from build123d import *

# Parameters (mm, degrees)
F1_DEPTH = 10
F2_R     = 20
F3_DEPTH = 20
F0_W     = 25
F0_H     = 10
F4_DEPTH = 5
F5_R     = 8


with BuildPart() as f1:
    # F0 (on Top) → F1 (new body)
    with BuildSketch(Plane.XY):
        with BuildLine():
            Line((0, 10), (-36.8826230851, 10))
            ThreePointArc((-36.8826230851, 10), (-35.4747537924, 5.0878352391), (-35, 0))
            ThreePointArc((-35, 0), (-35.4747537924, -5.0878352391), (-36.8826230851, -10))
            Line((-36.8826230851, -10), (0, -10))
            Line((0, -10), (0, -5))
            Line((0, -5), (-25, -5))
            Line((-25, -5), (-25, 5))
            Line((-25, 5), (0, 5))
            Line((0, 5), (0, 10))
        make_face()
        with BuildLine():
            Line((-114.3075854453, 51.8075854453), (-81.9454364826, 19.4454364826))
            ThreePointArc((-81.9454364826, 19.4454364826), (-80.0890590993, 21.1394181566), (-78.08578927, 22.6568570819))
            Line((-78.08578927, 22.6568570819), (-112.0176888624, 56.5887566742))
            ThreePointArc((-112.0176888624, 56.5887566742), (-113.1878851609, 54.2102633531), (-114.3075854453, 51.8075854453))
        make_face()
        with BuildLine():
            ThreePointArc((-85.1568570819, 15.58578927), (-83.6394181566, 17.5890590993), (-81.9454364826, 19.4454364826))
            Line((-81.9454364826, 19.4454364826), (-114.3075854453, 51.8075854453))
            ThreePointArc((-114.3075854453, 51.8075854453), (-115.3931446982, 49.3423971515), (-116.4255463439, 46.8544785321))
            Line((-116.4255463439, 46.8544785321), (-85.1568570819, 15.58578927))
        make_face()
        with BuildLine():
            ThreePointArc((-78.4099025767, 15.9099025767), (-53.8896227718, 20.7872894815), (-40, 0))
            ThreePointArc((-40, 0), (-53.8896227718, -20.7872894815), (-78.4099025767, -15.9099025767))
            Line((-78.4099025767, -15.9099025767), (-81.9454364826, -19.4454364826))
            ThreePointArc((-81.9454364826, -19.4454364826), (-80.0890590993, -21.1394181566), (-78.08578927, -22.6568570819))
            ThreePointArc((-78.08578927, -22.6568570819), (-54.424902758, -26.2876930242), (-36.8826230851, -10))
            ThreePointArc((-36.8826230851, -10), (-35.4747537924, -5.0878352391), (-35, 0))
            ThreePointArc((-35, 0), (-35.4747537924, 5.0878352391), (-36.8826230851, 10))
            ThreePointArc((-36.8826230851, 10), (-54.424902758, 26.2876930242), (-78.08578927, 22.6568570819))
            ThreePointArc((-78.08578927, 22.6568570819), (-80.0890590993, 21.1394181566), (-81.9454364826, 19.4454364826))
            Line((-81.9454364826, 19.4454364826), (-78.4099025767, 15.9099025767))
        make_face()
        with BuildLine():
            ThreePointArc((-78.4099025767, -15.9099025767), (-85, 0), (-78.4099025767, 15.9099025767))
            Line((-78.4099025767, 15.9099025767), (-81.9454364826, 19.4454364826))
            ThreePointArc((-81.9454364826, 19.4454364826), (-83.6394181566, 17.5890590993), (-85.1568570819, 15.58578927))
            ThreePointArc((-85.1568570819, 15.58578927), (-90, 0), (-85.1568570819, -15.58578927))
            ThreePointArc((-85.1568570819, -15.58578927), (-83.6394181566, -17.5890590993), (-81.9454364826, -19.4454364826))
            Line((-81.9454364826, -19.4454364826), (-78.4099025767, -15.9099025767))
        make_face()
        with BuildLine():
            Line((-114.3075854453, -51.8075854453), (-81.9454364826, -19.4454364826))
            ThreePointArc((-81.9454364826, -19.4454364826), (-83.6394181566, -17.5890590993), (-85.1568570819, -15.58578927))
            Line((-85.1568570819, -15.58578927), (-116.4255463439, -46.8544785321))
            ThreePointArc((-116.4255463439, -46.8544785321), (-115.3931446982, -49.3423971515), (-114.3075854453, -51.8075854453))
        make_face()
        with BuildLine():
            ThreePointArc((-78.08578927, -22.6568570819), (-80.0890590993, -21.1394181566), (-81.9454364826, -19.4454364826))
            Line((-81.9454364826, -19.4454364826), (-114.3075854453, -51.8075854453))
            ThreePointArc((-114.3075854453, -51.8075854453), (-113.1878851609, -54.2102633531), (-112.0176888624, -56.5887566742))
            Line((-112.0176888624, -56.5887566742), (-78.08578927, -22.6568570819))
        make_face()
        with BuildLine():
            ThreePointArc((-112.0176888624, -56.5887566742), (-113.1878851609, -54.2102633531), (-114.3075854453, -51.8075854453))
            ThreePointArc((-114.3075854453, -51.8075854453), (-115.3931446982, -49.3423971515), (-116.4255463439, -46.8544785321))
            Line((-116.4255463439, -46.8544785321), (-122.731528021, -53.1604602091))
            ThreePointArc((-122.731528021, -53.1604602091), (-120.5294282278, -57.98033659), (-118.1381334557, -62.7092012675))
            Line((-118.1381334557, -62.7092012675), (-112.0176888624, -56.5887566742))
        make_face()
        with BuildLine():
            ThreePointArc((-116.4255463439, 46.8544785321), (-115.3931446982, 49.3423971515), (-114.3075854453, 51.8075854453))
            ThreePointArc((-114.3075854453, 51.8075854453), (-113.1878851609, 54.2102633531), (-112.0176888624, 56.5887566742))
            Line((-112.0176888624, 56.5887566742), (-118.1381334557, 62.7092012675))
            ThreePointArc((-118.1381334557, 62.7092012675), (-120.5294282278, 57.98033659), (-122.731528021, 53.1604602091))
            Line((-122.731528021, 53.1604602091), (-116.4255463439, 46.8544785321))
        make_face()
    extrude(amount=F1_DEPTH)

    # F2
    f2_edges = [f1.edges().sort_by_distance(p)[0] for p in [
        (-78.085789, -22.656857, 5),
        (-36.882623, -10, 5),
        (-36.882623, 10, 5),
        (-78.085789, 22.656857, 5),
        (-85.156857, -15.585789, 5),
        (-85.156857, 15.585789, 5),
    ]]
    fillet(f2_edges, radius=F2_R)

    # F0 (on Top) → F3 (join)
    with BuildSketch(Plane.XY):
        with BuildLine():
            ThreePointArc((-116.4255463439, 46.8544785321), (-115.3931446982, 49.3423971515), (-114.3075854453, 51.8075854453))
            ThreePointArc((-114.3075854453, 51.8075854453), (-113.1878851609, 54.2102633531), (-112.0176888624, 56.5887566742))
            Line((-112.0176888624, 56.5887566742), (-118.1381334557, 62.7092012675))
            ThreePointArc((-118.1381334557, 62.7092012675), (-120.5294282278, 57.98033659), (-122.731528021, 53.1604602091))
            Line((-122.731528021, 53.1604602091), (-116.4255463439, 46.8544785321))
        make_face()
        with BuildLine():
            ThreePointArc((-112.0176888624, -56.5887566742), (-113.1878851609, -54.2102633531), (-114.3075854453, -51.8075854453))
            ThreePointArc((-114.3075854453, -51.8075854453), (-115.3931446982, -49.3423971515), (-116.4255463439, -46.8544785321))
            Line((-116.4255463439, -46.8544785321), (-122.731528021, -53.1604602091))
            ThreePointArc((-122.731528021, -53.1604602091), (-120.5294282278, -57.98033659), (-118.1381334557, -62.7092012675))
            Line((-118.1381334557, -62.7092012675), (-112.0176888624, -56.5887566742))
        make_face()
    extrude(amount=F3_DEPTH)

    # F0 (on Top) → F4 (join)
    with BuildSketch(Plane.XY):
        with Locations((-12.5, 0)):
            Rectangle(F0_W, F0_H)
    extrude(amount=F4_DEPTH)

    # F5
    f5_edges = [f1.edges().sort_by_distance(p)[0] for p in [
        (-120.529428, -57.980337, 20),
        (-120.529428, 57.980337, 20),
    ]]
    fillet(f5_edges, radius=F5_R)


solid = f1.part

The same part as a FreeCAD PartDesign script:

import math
import FreeCAD as App
import Part
import Sketcher
Q = App.Units.Quantity


def edges_at(feature, points):
    """Names of the edges that pass closest to the given points."""
    edges = feature.Shape.Edges
    near = lambda p: min(range(len(edges)), key=lambda i: edges[i].distToShape(Part.Vertex(*p))[0])
    return sorted({f"Edge{near(p) + 1}" for p in points})

doc = App.newDocument("Part")
body = doc.addObject("PartDesign::Body", "Body")

sketch1 = body.newObject("Sketcher::SketchObject", "Sketch")
sketch1.AttachmentSupport = (doc.getObject("XY_Plane"), [""])
sketch1.MapMode = "FlatFace"
sketch1.addGeometry([
    Part.LineSegment(App.Vector(0, 10, 0), App.Vector(-37, 10, 0)),
    Part.ArcOfCircle(Part.Circle(App.Vector(-62, 0, 0), App.Vector(0, 0, 1), 28), math.radians(21), math.radians(125)),
    Part.LineSegment(App.Vector(-78, 23, 0), App.Vector(-112, 57, 0)),
    Part.LineSegment(App.Vector(-112, 57, 0), App.Vector(-118, 63, 0)),
    Part.ArcOfCircle(Part.Circle(App.Vector(0, 0, 0), App.Vector(0, 0, 1), 134), math.radians(152.04), math.radians(156.58)),
    Part.LineSegment(App.Vector(-123, 53, 0), App.Vector(-116, 47, 0)),
    Part.LineSegment(App.Vector(-116, 47, 0), App.Vector(-85, 16, 0)),
    Part.ArcOfCircle(Part.Circle(App.Vector(-62, 0, 0), App.Vector(0, 0, 1), 28), math.radians(145), math.radians(215)),
    Part.LineSegment(App.Vector(-85, -16, 0), App.Vector(-116, -47, 0)),
    Part.LineSegment(App.Vector(-116, -47, 0), App.Vector(-123, -53, 0)),
    Part.ArcOfCircle(Part.Circle(App.Vector(0, 0, 0), App.Vector(0, 0, 1), 134), math.radians(-156.58), math.radians(-152.04)),
    Part.LineSegment(App.Vector(-118, -63, 0), App.Vector(-112, -57, 0)),
    Part.LineSegment(App.Vector(-112, -57, 0), App.Vector(-78, -23, 0)),
    Part.ArcOfCircle(Part.Circle(App.Vector(-62, 0, 0), App.Vector(0, 0, 1), 28), math.radians(-125), math.radians(-21)),
    Part.LineSegment(App.Vector(-37, -10, 0), App.Vector(0, -10, 0)),
    Part.LineSegment(App.Vector(0, -10, 0), App.Vector(0, -5, 0)),
    Part.LineSegment(App.Vector(0, -5, 0), App.Vector(-25, -5, 0)),
    Part.LineSegment(App.Vector(-25, -5, 0), App.Vector(-25, 5, 0)),
    Part.LineSegment(App.Vector(-25, 5, 0), App.Vector(0, 5, 0)),
    Part.LineSegment(App.Vector(0, 5, 0), App.Vector(0, 10, 0)),
    Part.ArcOfCircle(Part.Circle(App.Vector(-62, 0, 0), App.Vector(0, 0, 1), 22), math.radians(0), math.radians(135)),
    Part.ArcOfCircle(Part.Circle(App.Vector(-62, 0, 0), App.Vector(0, 0, 1), 22), math.radians(-135), math.radians(0)),
    Part.ArcOfCircle(Part.Circle(App.Vector(-62, 0, 0), App.Vector(0, 0, 1), 22), math.radians(135), math.radians(225)),
], False)
sketch1.addConstraint([
    Sketcher.Constraint("Coincident", 0, 2, 1, 1),
    Sketcher.Constraint("Coincident", 1, 2, 2, 1),
    Sketcher.Constraint("Coincident", 2, 2, 3, 1),
    Sketcher.Constraint("Coincident", 3, 2, 4, 1),
    Sketcher.Constraint("Coincident", 4, 2, 5, 1),
    Sketcher.Constraint("Coincident", 5, 2, 6, 1),
    Sketcher.Constraint("Coincident", 6, 2, 7, 1),
    Sketcher.Constraint("Coincident", 7, 2, 8, 1),
    Sketcher.Constraint("Coincident", 8, 2, 9, 1),
    Sketcher.Constraint("Coincident", 9, 2, 10, 1),
    Sketcher.Constraint("Coincident", 10, 2, 11, 1),
    Sketcher.Constraint("Coincident", 11, 2, 12, 1),
    Sketcher.Constraint("Coincident", 12, 2, 13, 1),
    Sketcher.Constraint("Coincident", 13, 2, 14, 1),
    Sketcher.Constraint("Coincident", 14, 2, 15, 1),
    Sketcher.Constraint("Coincident", 15, 2, 16, 1),
    Sketcher.Constraint("Coincident", 16, 2, 17, 1),
    Sketcher.Constraint("Coincident", 17, 2, 18, 1),
    Sketcher.Constraint("Coincident", 18, 2, 19, 1),
    Sketcher.Constraint("Coincident", 19, 2, 0, 1),
    Sketcher.Constraint("Tangent", 20, 1, 21, 2),
    Sketcher.Constraint("Tangent", 21, 1, 22, 2),
    Sketcher.Constraint("Tangent", 22, 1, 20, 2),
    Sketcher.Constraint("Horizontal", 0),
    Sketcher.Constraint("Horizontal", 14),
    Sketcher.Constraint("Vertical", 15),
    Sketcher.Constraint("Horizontal", 16),
    Sketcher.Constraint("Vertical", 17),
    Sketcher.Constraint("Horizontal", 18),
    Sketcher.Constraint("Vertical", 19),
    Sketcher.Constraint("Coincident", 4, 3, -1, 1),
    Sketcher.Constraint("Coincident", 10, 3, -1, 1),
    Sketcher.Constraint("Coincident", 7, 3, 1, 3),
    Sketcher.Constraint("Coincident", 13, 3, 1, 3),
    Sketcher.Constraint("Coincident", 20, 3, 1, 3),
    Sketcher.Constraint("Equal", 1, 7),
    Sketcher.Constraint("Equal", 4, 10),
    Sketcher.Constraint("Equal", 7, 13),
    Sketcher.Constraint("Symmetric", 15, 2, 18, 2, -1, 1),
    Sketcher.Constraint("Symmetric", 6, 2, 7, 2, -1),
    Sketcher.Constraint("Symmetric", 5, 2, 8, 2, -1),
    Sketcher.Constraint("Symmetric", 2, 2, 11, 2, -1),
    Sketcher.Constraint("Symmetric", 14, 2, 19, 2, -1),
    Sketcher.Constraint("PointOnObject", 20, 1, -1),
    Sketcher.Constraint("Parallel", 2, 3),
    Sketcher.Constraint("Parallel", 3, 5),
    Sketcher.Constraint("Parallel", 5, 6),
    Sketcher.Constraint("Perpendicular", 6, 8),
    Sketcher.Constraint("Parallel", 8, 9),
    Sketcher.Constraint("Parallel", 9, 11),
    Sketcher.Constraint("Parallel", 11, 12),
    Sketcher.Constraint("Vertical", 21, 1, 22, 1),
    Sketcher.Constraint("Radius", 1, Q("27.5 mm")),
    Sketcher.Constraint("Radius", 20, Q("22.5 mm")),
    Sketcher.Constraint("DistanceX", 16, 2, 16, 1, Q("25 mm")),
    Sketcher.Constraint("DistanceY", 15, 1, 15, 2, Q("5 mm")),
    Sketcher.Constraint("DistanceY", 17, 1, 17, 2, Q("10 mm")),
    Sketcher.Constraint("Radius", 4, Q("133.75 mm")),
    Sketcher.Constraint("DistanceX", 20, 1, -1, 1, Q("40 mm")),
    Sketcher.Constraint("DistanceY", -1, 1, 3, 2, Q("62.709201 mm")),
    Sketcher.Constraint("DistanceX", 2, 2, 1, 2, Q("33.9319 mm")),
    Sketcher.Constraint("DistanceX", 4, 2, -1, 1, Q("122.731528 mm")),
    Sketcher.Constraint("DistanceY", -1, 1, 5, 2, Q("46.854479 mm")),
    Sketcher.Constraint("DistanceX", 21, 1, -1, 1, Q("78.409903 mm")),
])
pad1 = body.newObject("PartDesign::Pad", "Pad")
pad1.Profile = sketch1
pad1.Length = 10
doc.recompute()

fillet = body.newObject("PartDesign::Fillet", "Fillet")
fillet.Base = (pad1, edges_at(pad1, [
    (-78.086, -22.657, 5),
    (-36.883, -10, 5),
    (-36.883, 10, 5),
    (-78.086, 22.657, 5),
    (-85.157, -15.586, 5),
    (-85.157, 15.586, 5),
]))
fillet.Radius = 20

sketch2 = body.newObject("Sketcher::SketchObject", "Sketch001")
sketch2.AttachmentSupport = (doc.getObject("XY_Plane"), [""])
sketch2.MapMode = "FlatFace"
sketch2.addGeometry([
    Part.ArcOfCircle(Part.Circle(App.Vector(0, 0, 0), App.Vector(0, 0, 1), 126), math.radians(155.62), math.radians(158.08)),
    Part.ArcOfCircle(Part.Circle(App.Vector(0, 0, 0), App.Vector(0, 0, 1), 125), math.radians(153.2), math.radians(155.62)),
    Part.LineSegment(App.Vector(-112, 57, 0), App.Vector(-118, 63, 0)),
    Part.ArcOfCircle(Part.Circle(App.Vector(0, 0, 0), App.Vector(0, 0, 1), 134), math.radians(152.04), math.radians(156.58)),
    Part.LineSegment(App.Vector(-123, 53, 0), App.Vector(-116, 47, 0)),
    Part.ArcOfCircle(Part.Circle(App.Vector(0, 0, 0), App.Vector(0, 0, 1), 125), math.radians(-155.62), math.radians(-153.2)),
    Part.ArcOfCircle(Part.Circle(App.Vector(0, 0, 0), App.Vector(0, 0, 1), 126), math.radians(-158.08), math.radians(-155.62)),
    Part.LineSegment(App.Vector(-116, -47, 0), App.Vector(-123, -53, 0)),
    Part.ArcOfCircle(Part.Circle(App.Vector(0, 0, 0), App.Vector(0, 0, 1), 134), math.radians(-156.58), math.radians(-152.04)),
    Part.LineSegment(App.Vector(-118, -63, 0), App.Vector(-112, -57, 0)),
], False)
sketch2.addConstraint([
    Sketcher.Constraint("Tangent", 0, 1, 1, 2),
    Sketcher.Constraint("Coincident", 1, 1, 2, 1),
    Sketcher.Constraint("Coincident", 2, 2, 3, 1),
    Sketcher.Constraint("Coincident", 3, 2, 4, 1),
    Sketcher.Constraint("Coincident", 4, 2, 0, 2),
    Sketcher.Constraint("Tangent", 5, 1, 6, 2),
    Sketcher.Constraint("Coincident", 6, 1, 7, 1),
    Sketcher.Constraint("Coincident", 7, 2, 8, 1),
    Sketcher.Constraint("Coincident", 8, 2, 9, 1),
    Sketcher.Constraint("Coincident", 9, 2, 5, 2),
    Sketcher.Constraint("Coincident", 0, 3, -1, 1),
    Sketcher.Constraint("Coincident", 3, 3, -1, 1),
    Sketcher.Constraint("Coincident", 5, 3, -1, 1),
    Sketcher.Constraint("Coincident", 8, 3, -1, 1),
    Sketcher.Constraint("Equal", 0, 1),
    Sketcher.Constraint("Equal", 1, 5),
    Sketcher.Constraint("Equal", 5, 6),
    Sketcher.Constraint("Equal", 3, 8),
    Sketcher.Constraint("Parallel", 2, 4),
    Sketcher.Constraint("Perpendicular", 4, 7),
    Sketcher.Constraint("Parallel", 7, 9),
    Sketcher.Constraint("Vertical", 0, 1, 5, 1),
    Sketcher.Constraint("Vertical", 4, 2, 6, 1),
    Sketcher.Constraint("Vertical", 3, 2, 7, 2),
    Sketcher.Constraint("Vertical", 2, 2, 8, 2),
    Sketcher.Constraint("Radius", 0, Q("125.5 mm")),
    Sketcher.Constraint("Radius", 3, Q("133.75 mm")),
    Sketcher.Constraint("DistanceY", -1, 1, 2, 2, Q("62.709201 mm")),
    Sketcher.Constraint("DistanceX", 3, 2, -1, 1, Q("122.731528 mm")),
    Sketcher.Constraint("DistanceY", 0, 1, 1, 1, Q("4.781171 mm")),
])
pad2 = body.newObject("PartDesign::Pad", "Pad001")
pad2.Profile = sketch2
pad2.Length = 20

sketch3 = body.newObject("Sketcher::SketchObject", "Sketch002")
sketch3.AttachmentSupport = (doc.getObject("XY_Plane"), [""])
sketch3.MapMode = "FlatFace"
sketch3.addGeometry([
    Part.LineSegment(App.Vector(-25, 5, 0), App.Vector(-25, -5, 0)),
    Part.LineSegment(App.Vector(-25, -5, 0), App.Vector(0, -5, 0)),
    Part.LineSegment(App.Vector(0, -5, 0), App.Vector(0, 5, 0)),
    Part.LineSegment(App.Vector(0, 5, 0), App.Vector(-25, 5, 0)),
], False)
sketch3.addConstraint([
    Sketcher.Constraint("Coincident", 0, 2, 1, 1),
    Sketcher.Constraint("Coincident", 1, 2, 2, 1),
    Sketcher.Constraint("Coincident", 2, 2, 3, 1),
    Sketcher.Constraint("Coincident", 3, 2, 0, 1),
    Sketcher.Constraint("Vertical", 0),
    Sketcher.Constraint("Horizontal", 1),
    Sketcher.Constraint("Vertical", 2),
    Sketcher.Constraint("Horizontal", 3),
    Sketcher.Constraint("Symmetric", 1, 2, 2, 2, -1, 1),
    Sketcher.Constraint("DistanceX", 1, 1, 1, 2, Q("25 mm")),
    Sketcher.Constraint("DistanceY", 0, 2, 0, 1, Q("10 mm")),
])
pad3 = body.newObject("PartDesign::Pad", "Pad002")
pad3.Profile = sketch3
pad3.Length = 5
doc.recompute()

fillet2 = body.newObject("PartDesign::Fillet", "Fillet001")
fillet2.Base = (pad3, edges_at(pad3, [(-120.529, -57.98, 20), (-120.529, 57.98, 20)]))
fillet2.Radius = 8

doc.recompute()
